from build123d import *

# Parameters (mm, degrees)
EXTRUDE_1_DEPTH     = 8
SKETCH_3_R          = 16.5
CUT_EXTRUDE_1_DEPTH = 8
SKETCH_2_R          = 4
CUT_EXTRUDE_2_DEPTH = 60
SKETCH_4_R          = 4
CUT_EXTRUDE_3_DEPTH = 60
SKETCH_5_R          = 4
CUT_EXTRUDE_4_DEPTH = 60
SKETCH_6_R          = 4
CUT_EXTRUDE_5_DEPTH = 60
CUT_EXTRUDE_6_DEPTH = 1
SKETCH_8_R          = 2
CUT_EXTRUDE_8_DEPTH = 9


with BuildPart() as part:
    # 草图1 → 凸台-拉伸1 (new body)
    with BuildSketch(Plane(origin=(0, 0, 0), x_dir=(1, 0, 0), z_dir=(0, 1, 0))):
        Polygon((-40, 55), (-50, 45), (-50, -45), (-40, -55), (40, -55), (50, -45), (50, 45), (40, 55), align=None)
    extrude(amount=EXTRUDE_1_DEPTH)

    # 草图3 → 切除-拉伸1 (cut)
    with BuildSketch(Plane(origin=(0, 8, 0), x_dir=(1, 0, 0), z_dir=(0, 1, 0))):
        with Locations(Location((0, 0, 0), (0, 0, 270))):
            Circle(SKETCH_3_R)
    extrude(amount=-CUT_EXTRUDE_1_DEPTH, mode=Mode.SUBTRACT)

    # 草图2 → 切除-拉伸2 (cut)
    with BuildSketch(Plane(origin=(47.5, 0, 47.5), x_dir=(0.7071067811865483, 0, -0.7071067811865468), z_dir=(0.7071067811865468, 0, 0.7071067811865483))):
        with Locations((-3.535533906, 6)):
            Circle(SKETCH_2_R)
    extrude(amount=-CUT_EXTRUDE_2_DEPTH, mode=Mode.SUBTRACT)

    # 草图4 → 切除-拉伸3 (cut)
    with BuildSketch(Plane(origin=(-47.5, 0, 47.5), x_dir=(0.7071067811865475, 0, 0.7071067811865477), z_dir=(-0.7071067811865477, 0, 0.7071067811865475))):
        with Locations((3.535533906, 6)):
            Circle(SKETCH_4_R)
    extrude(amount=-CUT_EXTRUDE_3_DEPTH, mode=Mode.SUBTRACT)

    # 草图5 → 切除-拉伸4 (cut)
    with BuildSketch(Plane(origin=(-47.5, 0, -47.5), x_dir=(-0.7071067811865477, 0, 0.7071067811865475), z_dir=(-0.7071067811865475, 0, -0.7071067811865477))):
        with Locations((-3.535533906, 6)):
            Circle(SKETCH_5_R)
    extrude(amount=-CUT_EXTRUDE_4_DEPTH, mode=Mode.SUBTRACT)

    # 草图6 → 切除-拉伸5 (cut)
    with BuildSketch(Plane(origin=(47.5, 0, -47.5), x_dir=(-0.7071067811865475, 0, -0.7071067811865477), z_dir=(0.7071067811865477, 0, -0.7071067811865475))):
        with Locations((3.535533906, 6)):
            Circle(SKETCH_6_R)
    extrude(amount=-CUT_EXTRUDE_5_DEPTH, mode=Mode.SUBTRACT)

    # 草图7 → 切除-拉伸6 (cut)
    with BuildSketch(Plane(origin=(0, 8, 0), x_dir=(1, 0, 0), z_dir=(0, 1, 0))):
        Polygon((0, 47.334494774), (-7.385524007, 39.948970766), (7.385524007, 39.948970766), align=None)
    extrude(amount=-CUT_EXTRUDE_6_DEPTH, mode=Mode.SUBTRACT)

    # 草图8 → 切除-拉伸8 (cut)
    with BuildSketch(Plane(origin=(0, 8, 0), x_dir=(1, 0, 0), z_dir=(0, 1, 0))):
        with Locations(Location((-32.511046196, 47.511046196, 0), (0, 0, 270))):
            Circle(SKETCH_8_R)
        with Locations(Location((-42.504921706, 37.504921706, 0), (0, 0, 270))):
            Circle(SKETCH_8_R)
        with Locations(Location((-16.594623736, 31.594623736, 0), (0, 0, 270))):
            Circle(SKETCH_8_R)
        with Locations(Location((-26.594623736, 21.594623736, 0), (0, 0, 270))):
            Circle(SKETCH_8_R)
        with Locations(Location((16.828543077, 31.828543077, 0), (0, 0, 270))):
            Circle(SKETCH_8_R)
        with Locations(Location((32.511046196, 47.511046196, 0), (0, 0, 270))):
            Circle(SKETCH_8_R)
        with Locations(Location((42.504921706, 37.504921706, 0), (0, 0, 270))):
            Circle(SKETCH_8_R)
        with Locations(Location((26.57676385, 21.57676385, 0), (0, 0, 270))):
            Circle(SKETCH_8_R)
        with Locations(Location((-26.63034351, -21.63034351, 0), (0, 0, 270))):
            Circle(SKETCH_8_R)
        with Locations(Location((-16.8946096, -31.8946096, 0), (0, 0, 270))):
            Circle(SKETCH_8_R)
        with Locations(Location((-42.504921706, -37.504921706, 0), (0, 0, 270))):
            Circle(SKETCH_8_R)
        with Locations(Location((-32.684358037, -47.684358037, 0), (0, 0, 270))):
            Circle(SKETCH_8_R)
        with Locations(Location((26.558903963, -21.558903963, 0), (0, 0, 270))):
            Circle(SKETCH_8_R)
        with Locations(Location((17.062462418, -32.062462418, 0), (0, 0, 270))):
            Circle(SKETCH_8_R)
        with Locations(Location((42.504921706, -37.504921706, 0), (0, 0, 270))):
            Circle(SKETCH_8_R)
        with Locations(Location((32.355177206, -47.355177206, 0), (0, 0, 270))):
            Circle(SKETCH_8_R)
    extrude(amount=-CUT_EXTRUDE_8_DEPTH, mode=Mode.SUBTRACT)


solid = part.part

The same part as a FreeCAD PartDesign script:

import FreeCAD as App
import Part
import Sketcher

V = App.Vector

doc = App.newDocument("Part")
body = doc.addObject("PartDesign::Body", "Body")

sketch1 = body.newObject("Sketcher::SketchObject", "Sketch")
sketch1.AttachmentSupport = (doc.getObject("XZ_Plane"), [""])
sketch1.MapMode = "FlatFace"
sketch1.addGeometry(Part.LineSegment(V(-40, -55, 0), V(-50, -45, 0)), False)
sketch1.addGeometry(Part.LineSegment(V(-50, -45, 0), V(-50, 45, 0)), False)
sketch1.addGeometry(Part.LineSegment(V(-50, 45, 0), V(-40, 55, 0)), False)
sketch1.addGeometry(Part.LineSegment(V(-40, 55, 0), V(40, 55, 0)), False)
sketch1.addGeometry(Part.LineSegment(V(40, 55, 0), V(50, 45, 0)), False)
sketch1.addGeometry(Part.LineSegment(V(50, 45, 0), V(50, -45, 0)), False)
sketch1.addGeometry(Part.LineSegment(V(50, -45, 0), V(40, -55, 0)), False)
sketch1.addGeometry(Part.LineSegment(V(40, -55, 0), V(-40, -55, 0)), False)
sketch1.addConstraint(Sketcher.Constraint("Coincident", 0, 2, 1, 1))
sketch1.addConstraint(Sketcher.Constraint("Coincident", 1, 2, 2, 1))
sketch1.addConstraint(Sketcher.Constraint("Coincident", 2, 2, 3, 1))
sketch1.addConstraint(Sketcher.Constraint("Coincident", 3, 2, 4, 1))
sketch1.addConstraint(Sketcher.Constraint("Coincident", 4, 2, 5, 1))
sketch1.addConstraint(Sketcher.Constraint("Coincident", 5, 2, 6, 1))
sketch1.addConstraint(Sketcher.Constraint("Coincident", 6, 2, 7, 1))
sketch1.addConstraint(Sketcher.Constraint("Coincident", 7, 2, 0, 1))
sketch1.addConstraint(Sketcher.Constraint("Vertical", 1))
sketch1.addConstraint(Sketcher.Constraint("Horizontal", 3))
sketch1.addConstraint(Sketcher.Constraint("Vertical", 5))
sketch1.addConstraint(Sketcher.Constraint("Horizontal", 7))
sketch1.addConstraint(Sketcher.Constraint("Symmetric", 0, 2, 4, 2, -1, 1))
sketch1.addConstraint(Sketcher.Constraint("Symmetric", 2, 2, 6, 2, -1, 1))
sketch1.addConstraint(Sketcher.Constraint("Perpendicular", 0, 2))
sketch1.addConstraint(Sketcher.Constraint("Perpendicular", 2, 4))
sketch1.addConstraint(Sketcher.Constraint("Perpendicular", 4, 6))
sketch1.addConstraint(Sketcher.Constraint("Horizontal", 1, 2, 4, 2))
sketch1.addConstraint(Sketcher.Constraint("Vertical", 3, 2, 6, 2))
sketch1.addConstraint(Sketcher.Constraint("DistanceX", 3, 1, 3, 2, 80.0))
sketch1.addConstraint(Sketcher.Constraint("DistanceY", 1, 1, 1, 2, 90.0))
sketch1.addConstraint(Sketcher.Constraint("DistanceX", 0, 2, -1, 1, 50.0))
pad1 = body.newObject("PartDesign::Pad", "Pad")
pad1.Profile = sketch1
pad1.Length = 8
pad1.Reversed = True

sketch2 = body.newObject("Sketcher::SketchObject", "Sketch001")
sketch2.AttachmentSupport = (doc.getObject("XZ_Plane"), [""])
sketch2.MapMode = "FlatFace"
sketch2.AttachmentOffset = App.Placement(V(0, 0, -8), App.Rotation())
sketch2.addGeometry(Part.Circle(V(0, 0, 0), V(0, 0, 1), 16), False)
sketch2.addConstraint(Sketcher.Constraint("Coincident", 0, 3, -1, 1))
sketch2.addConstraint(Sketcher.Constraint("Diameter", 0, 33.0))
pocket1 = body.newObject("PartDesign::Pocket", "Pocket")
pocket1.Profile = sketch2
pocket1.Length = 8
pocket1.Reversed = True

sketch3 = body.newObject("Sketcher::SketchObject", "Sketch002")
sketch3.Placement = App.Placement(V(47.5, 0, 47.5), App.Rotation(V(0.707106781, 0, -0.707106781), V(0, 0.999999999, 0), V(0.707106781, 0, 0.707106781), "ZXY"))
sketch3.addGeometry(Part.Circle(V(-3.5, 6, 0), V(0, 0, 1), 4), False)
sketch3.addConstraint(Sketcher.Constraint("Diameter", 0, 8.0))
sketch3.addConstraint(Sketcher.Constraint("DistanceY", -1, 1, 0, 3, 6.0))
sketch3.addConstraint(Sketcher.Constraint("DistanceX", 0, 3, -1, 1, 3.535534))
pocket2 = body.newObject("PartDesign::Pocket", "Pocket001")
pocket2.Profile = sketch3
pocket2.Length = 60

sketch4 = body.newObject("Sketcher::SketchObject", "Sketch003")
sketch4.Placement = App.Placement(V(-47.5, 0, 47.5), App.Rotation(V(0.707106781, 0, 0.707106781), V(0, 0.999999999, 0), V(-0.707106781, 0, 0.707106781), "ZXY"))
sketch4.addGeometry(Part.Circle(V(3.5, 6, 0), V(0, 0, 1), 4), False)
sketch4.addConstraint(Sketcher.Constraint("Diameter", 0, 8.0))
sketch4.addConstraint(Sketcher.Constraint("DistanceY", -1, 1, 0, 3, 6.0))
sketch4.addConstraint(Sketcher.Constraint("DistanceX", -1, 1, 0, 3, 3.535534))
pocket3 = body.newObject("PartDesign::Pocket", "Pocket002")
pocket3.Profile = sketch4
pocket3.Length = 60

sketch5 = body.newObject("Sketcher::SketchObject", "Sketch004")
sketch5.Placement = App.Placement(V(-47.5, 0, -47.5), App.Rotation(V(-0.707106781, 0, 0.707106781), V(0, 0.999999999, 0), V(-0.707106781, 0, -0.707106781), "ZXY"))
sketch5.addGeometry(Part.Circle(V(-3.5, 6, 0), V(0, 0, 1), 4), False)
sketch5.addConstraint(Sketcher.Constraint("Diameter", 0, 8.0))
sketch5.addConstraint(Sketcher.Constraint("DistanceY", -1, 1, 0, 3, 6.0))
sketch5.addConstraint(Sketcher.Constraint("DistanceX", 0, 3, -1, 1, 3.535534))
pocket4 = body.newObject("PartDesign::Pocket", "Pocket003")
pocket4.Profile = sketch5
pocket4.Length = 60

sketch6 = body.newObject("Sketcher::SketchObject", "Sketch005")
sketch6.Placement = App.Placement(V(47.5, 0, -47.5), App.Rotation(V(-0.707106781, 0, -0.707106781), V(0, 0.999999999, 0), V(0.707106781, 0, -0.707106781), "ZXY"))
sketch6.addGeometry(Part.Circle(V(3.5, 6, 0), V(0, 0, 1), 4), False)
sketch6.addConstraint(Sketcher.Constraint("Diameter", 0, 8.0))
sketch6.addConstraint(Sketcher.Constraint("DistanceY", -1, 1, 0, 3, 6.0))
sketch6.addConstraint(Sketcher.Constraint("DistanceX", -1, 1, 0, 3, 3.535534))
pocket5 = body.newObject("PartDesign::Pocket", "Pocket004")
pocket5.Profile = sketch6
pocket5.Length = 60

sketch7 = body.newObject("Sketcher::SketchObject", "Sketch006")
sketch7.AttachmentSupport = (doc.getObject("XZ_Plane"), [""])
sketch7.MapMode = "FlatFace"
sketch7.AttachmentOffset = App.Placement(V(0, 0, -8), App.Rotation())
sketch7.addGeometry(Part.LineSegment(V(0, -47, 0), V(-7, -40, 0)), False)
sketch7.addGeometry(Part.LineSegment(V(-7, -40, 0), V(7, -40, 0)), False)
sketch7.addGeometry(Part.LineSegment(V(7, -40, 0), V(0, -47, 0)), False)
sketch7.addConstraint(Sketcher.Constraint("Coincident", 0, 2, 1, 1))
sketch7.addConstraint(Sketcher.Constraint("Coincident", 1, 2, 2, 1))
sketch7.addConstraint(Sketcher.Constraint("Coincident", 2, 2, 0, 1))
sketch7.addConstraint(Sketcher.Constraint("Horizontal", 1))
sketch7.addConstraint(Sketcher.Constraint("PointOnObject", 2, 2, -2))
sketch7.addConstraint(Sketcher.Constraint("Perpendicular", 0, 2))
sketch7.addConstraint(Sketcher.Constraint("Equal", 0, 2))
sketch7.addConstraint(Sketcher.Constraint("DistanceX", 1, 1, 1, 2, 14.771048))
sketch7.addConstraint(Sketcher.Constraint("DistanceY", 0, 2, -1, 1, 39.948971))
pocket6 = body.newObject("PartDesign::Pocket", "Pocket005")
pocket6.Profile = sketch7
pocket6.Length = 1
pocket6.Reversed = True

sketch8 = body.newObject("Sketcher::SketchObject", "Sketch007")
sketch8.AttachmentSupport = (doc.getObject("XZ_Plane"), [""])
sketch8.MapMode = "FlatFace"
sketch8.AttachmentOffset = App.Placement(V(0, 0, -8), App.Rotation())
sketch8.addGeometry(Part.Circle(V(-32.5, -47.5, 0), V(0, 0, 1), 2), False)
sketch8.addGeometry(Part.Circle(V(-42.5, -37.5, 0), V(0, 0, 1), 2), False)
sketch8.addGeometry(Part.Circle(V(-16.6, -31.6, 0), V(0, 0, 1), 2), False)
sketch8.addGeometry(Part.Circle(V(-26.6, -21.6, 0), V(0, 0, 1), 2), False)
sketch8.addGeometry(Part.Circle(V(16.8, -31.8, 0), V(0, 0, 1), 2), False)
sketch8.addGeometry(Part.Circle(V(32.5, -47.5, 0), V(0, 0, 1), 2), False)
sketch8.addGeometry(Part.Circle(V(42.5, -37.5, 0), V(0, 0, 1), 2), False)
sketch8.addGeometry(Part.Circle(V(26.6, -21.6, 0), V(0, 0, 1), 2), False)
sketch8.addGeometry(Part.Circle(V(-26.6, 21.6, 0), V(0, 0, 1), 2), False)
sketch8.addGeometry(Part.Circle(V(-16.9, 31.9, 0), V(0, 0, 1), 2), False)
sketch8.addGeometry(Part.Circle(V(-42.5, 37.5, 0), V(0, 0, 1), 2), False)
sketch8.addGeometry(Part.Circle(V(-32.7, 47.7, 0), V(0, 0, 1), 2), False)
sketch8.addGeometry(Part.Circle(V(26.6, 21.6, 0), V(0, 0, 1), 2), False)
sketch8.addGeometry(Part.Circle(V(17.1, 32.1, 0), V(0, 0, 1), 2), False)
sketch8.addGeometry(Part.Circle(V(42.5, 37.5, 0), V(0, 0, 1), 2), False)
sketch8.addGeometry(Part.Circle(V(32.4, 47.4, 0), V(0, 0, 1), 2), False)
sketch8.addConstraint(Sketcher.Constraint("Equal", 0, 1))
sketch8.addConstraint(Sketcher.Constraint("Equal", 1, 2))
sketch8.addConstraint(Sketcher.Constraint("Equal", 2, 3))
sketch8.addConstraint(Sketcher.Constraint("Equal", 3, 4))
sketch8.addConstraint(Sketcher.Constraint("Equal", 4, 5))
sketch8.addConstraint(Sketcher.Constraint("Equal", 5, 6))
sketch8.addConstraint(Sketcher.Constraint("Equal", 6, 7))
sketch8.addConstraint(Sketcher.Constraint("Equal", 7, 8))
sketch8.addConstraint(Sketcher.Constraint("Equal", 8, 9))
sketch8.addConstraint(Sketcher.Constraint("Equal", 9, 10))
sketch8.addConstraint(Sketcher.Constraint("Equal", 10, 11))
sketch8.addConstraint(Sketcher.Constraint("Equal", 11, 12))
sketch8.addConstraint(Sketcher.Constraint("Equal", 12, 13))
sketch8.addConstraint(Sketcher.Constraint("Equal", 13, 14))
sketch8.addConstraint(Sketcher.Constraint("Equal", 14, 15))
sketch8.addConstraint(Sketcher.Constraint("Symmetric", 6, 3, 10, 3, -1, 1))
sketch8.addConstraint(Sketcher.Constraint("Symmetric", 1, 3, 14, 3, -1, 1))
sketch8.addConstraint(Sketcher.Constraint("Symmetric", 0, 3, 5, 3, -2))
sketch8.addConstraint(Sketcher.Constraint("Symmetric", 1, 3, 6, 3, -2))
sketch8.addConstraint(Sketcher.Constraint("Diameter", 0, 4.0))
sketch8.addConstraint(Sketcher.Constraint("DistanceX", 3, 3, 2, 3, 10.0))
sketch8.addConstraint(Sketcher.Constraint("DistanceY", 2, 3, 3, 3, 10.0))
sketch8.addConstraint(Sketcher.Constraint("DistanceX", 13, 3, 7, 3, 9.514301))
sketch8.addConstraint(Sketcher.Constraint("DistanceX", 1, 3, -1, 1, 42.504922))
sketch8.addConstraint(Sketcher.Constraint("DistanceY", 1, 3, -1, 1, 37.504922))
sketch8.addConstraint(Sketcher.Constraint("DistanceX", 9, 3, -1, 1, 16.89461))
sketch8.addConstraint(Sketcher.Constraint("DistanceY", -1, 1, 9, 3, 31.89461))
sketch8.addConstraint(Sketcher.Constraint("DistanceX", 11, 3, -1, 1, 32.684358))
sketch8.addConstraint(Sketcher.Constraint("DistanceY", -1, 1, 11, 3, 47.684358))
sketch8.addConstraint(Sketcher.Constraint("DistanceY", 4, 3, 2, 3, 0.233919))
sketch8.addConstraint(Sketcher.Constraint("DistanceX", 0, 3, 4, 3, 49.339589))
sketch8.addConstraint(Sketcher.Constraint("DistanceY", 1, 3, 4, 3, 5.676379))
sketch8.addConstraint(Sketcher.Constraint("DistanceX", 2, 3, 5, 3, 49.10567))
sketch8.addConstraint(Sketcher.Constraint("DistanceX", 4, 3, 6, 3, 25.676379))
sketch8.addConstraint(Sketcher.Constraint("DistanceX", 4, 3, 7, 3, 9.748221))
sketch8.addConstraint(Sketcher.Constraint("DistanceY", 4, 3, 7, 3, 10.251779))
sketch8.addConstraint(Sketcher.Constraint("DistanceX", 8, 3, 3, 3, 0.03572))
sketch8.addConstraint(Sketcher.Constraint("DistanceY", 8, 3, 10, 3, 15.874578))
sketch8.addConstraint(Sketcher.Constraint("DistanceX", 12, 3, 7, 3, 0.01786))
sketch8.addConstraint(Sketcher.Constraint("DistanceY", 12, 3, 8, 3, 0.07144))
sketch8.addConstraint(Sketcher.Constraint("DistanceY", 12, 3, 13, 3, 10.503558))
sketch8.addConstraint(Sketcher.Constraint("DistanceX", 8, 3, 15, 3, 58.985521))
sketch8.addConstraint(Sketcher.Constraint("DistanceY", 0, 3, -1, 1, 47.511046))
sketch8.addConstraint(Sketcher.Constraint("DistanceY", -1, 1, 15, 3, 47.355177))
pocket7 = body.newObject("PartDesign::Pocket", "Pocket006")
pocket7.Profile = sketch8
pocket7.Length = 9
pocket7.Reversed = True

doc.recompute()
